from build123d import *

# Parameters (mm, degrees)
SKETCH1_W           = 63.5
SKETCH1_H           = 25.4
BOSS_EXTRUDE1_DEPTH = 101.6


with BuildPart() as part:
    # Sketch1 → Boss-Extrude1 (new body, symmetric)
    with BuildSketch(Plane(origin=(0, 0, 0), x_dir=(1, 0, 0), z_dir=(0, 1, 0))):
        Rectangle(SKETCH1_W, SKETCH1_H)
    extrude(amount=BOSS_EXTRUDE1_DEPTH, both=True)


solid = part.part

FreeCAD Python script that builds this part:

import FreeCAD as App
import Part
import Sketcher
from FreeCAD import Vector
Q = App.Units.Quantity

doc = App.newDocument("Part")
params = doc.addObject("Spreadsheet::Sheet", "Params")
for row, (alias, value) in enumerate([
    ("sketch1_height", "1 in"),
    ("sketch1_width", "2.5 in"),
    ("pad1_length", "8 in"),
], start=1):
    params.set(f"A{row}", alias)
    params.set(f"B{row}", "=" + value)
    params.setAlias(f"B{row}", alias)

body = doc.addObject("PartDesign::Body", "Body")

# Sketch on XZ plane
sketch1 = body.newObject("Sketcher::SketchObject", "Sketch")
sketch1.AttachmentSupport = (doc.getObject("XZ_Plane"), [""])
sketch1.MapMode = "FlatFace"
sketch1.addGeometry([
    Part.LineSegment(Vector(-31.75, -12.7, 0), Vector(-31.75, 12.7, 0)),
    Part.LineSegment(Vector(-31.75, 12.7, 0), Vector(31.75, 12.7, 0)),
    Part.LineSegment(Vector(31.75, 12.7, 0), Vector(31.75, -12.7, 0)),
    Part.LineSegment(Vector(31.75, -12.7, 0), Vector(-31.75, -12.7, 0)),
], False)
sketch1.addConstraint([
    Sketcher.Constraint("Coincident", 0, 2, 1, 1),
    Sketcher.Constraint("Coincident", 1, 2, 2, 1),
    Sketcher.Constraint("Coincident", 2, 2, 3, 1),
    Sketcher.Constraint("Coincident", 3, 2, 0, 1),
    Sketcher.Constraint("Vertical", 0),
    Sketcher.Constraint("Horizontal", 1),
    Sketcher.Constraint("Vertical", 2),
    Sketcher.Constraint("Horizontal", 3),
    Sketcher.Constraint("Symmetric", 0, 2, 2, 2, -1, 1),
    Sketcher.Constraint("DistanceY", 0, 1, 0, 2, Q("1 in")),
    Sketcher.Constraint("DistanceX", 1, 1, 1, 2, Q("2.5 in")),
])
sketch1.setExpression("Constraints[9]", "Params.sketch1_height")
sketch1.setExpression("Constraints[10]", "Params.sketch1_width")
pad1 = body.newObject("PartDesign::Pad", "Pad")
pad1.Profile = sketch1
pad1.setExpression("Length", "Params.pad1_length")
pad1.Midplane = True

doc.recompute()
